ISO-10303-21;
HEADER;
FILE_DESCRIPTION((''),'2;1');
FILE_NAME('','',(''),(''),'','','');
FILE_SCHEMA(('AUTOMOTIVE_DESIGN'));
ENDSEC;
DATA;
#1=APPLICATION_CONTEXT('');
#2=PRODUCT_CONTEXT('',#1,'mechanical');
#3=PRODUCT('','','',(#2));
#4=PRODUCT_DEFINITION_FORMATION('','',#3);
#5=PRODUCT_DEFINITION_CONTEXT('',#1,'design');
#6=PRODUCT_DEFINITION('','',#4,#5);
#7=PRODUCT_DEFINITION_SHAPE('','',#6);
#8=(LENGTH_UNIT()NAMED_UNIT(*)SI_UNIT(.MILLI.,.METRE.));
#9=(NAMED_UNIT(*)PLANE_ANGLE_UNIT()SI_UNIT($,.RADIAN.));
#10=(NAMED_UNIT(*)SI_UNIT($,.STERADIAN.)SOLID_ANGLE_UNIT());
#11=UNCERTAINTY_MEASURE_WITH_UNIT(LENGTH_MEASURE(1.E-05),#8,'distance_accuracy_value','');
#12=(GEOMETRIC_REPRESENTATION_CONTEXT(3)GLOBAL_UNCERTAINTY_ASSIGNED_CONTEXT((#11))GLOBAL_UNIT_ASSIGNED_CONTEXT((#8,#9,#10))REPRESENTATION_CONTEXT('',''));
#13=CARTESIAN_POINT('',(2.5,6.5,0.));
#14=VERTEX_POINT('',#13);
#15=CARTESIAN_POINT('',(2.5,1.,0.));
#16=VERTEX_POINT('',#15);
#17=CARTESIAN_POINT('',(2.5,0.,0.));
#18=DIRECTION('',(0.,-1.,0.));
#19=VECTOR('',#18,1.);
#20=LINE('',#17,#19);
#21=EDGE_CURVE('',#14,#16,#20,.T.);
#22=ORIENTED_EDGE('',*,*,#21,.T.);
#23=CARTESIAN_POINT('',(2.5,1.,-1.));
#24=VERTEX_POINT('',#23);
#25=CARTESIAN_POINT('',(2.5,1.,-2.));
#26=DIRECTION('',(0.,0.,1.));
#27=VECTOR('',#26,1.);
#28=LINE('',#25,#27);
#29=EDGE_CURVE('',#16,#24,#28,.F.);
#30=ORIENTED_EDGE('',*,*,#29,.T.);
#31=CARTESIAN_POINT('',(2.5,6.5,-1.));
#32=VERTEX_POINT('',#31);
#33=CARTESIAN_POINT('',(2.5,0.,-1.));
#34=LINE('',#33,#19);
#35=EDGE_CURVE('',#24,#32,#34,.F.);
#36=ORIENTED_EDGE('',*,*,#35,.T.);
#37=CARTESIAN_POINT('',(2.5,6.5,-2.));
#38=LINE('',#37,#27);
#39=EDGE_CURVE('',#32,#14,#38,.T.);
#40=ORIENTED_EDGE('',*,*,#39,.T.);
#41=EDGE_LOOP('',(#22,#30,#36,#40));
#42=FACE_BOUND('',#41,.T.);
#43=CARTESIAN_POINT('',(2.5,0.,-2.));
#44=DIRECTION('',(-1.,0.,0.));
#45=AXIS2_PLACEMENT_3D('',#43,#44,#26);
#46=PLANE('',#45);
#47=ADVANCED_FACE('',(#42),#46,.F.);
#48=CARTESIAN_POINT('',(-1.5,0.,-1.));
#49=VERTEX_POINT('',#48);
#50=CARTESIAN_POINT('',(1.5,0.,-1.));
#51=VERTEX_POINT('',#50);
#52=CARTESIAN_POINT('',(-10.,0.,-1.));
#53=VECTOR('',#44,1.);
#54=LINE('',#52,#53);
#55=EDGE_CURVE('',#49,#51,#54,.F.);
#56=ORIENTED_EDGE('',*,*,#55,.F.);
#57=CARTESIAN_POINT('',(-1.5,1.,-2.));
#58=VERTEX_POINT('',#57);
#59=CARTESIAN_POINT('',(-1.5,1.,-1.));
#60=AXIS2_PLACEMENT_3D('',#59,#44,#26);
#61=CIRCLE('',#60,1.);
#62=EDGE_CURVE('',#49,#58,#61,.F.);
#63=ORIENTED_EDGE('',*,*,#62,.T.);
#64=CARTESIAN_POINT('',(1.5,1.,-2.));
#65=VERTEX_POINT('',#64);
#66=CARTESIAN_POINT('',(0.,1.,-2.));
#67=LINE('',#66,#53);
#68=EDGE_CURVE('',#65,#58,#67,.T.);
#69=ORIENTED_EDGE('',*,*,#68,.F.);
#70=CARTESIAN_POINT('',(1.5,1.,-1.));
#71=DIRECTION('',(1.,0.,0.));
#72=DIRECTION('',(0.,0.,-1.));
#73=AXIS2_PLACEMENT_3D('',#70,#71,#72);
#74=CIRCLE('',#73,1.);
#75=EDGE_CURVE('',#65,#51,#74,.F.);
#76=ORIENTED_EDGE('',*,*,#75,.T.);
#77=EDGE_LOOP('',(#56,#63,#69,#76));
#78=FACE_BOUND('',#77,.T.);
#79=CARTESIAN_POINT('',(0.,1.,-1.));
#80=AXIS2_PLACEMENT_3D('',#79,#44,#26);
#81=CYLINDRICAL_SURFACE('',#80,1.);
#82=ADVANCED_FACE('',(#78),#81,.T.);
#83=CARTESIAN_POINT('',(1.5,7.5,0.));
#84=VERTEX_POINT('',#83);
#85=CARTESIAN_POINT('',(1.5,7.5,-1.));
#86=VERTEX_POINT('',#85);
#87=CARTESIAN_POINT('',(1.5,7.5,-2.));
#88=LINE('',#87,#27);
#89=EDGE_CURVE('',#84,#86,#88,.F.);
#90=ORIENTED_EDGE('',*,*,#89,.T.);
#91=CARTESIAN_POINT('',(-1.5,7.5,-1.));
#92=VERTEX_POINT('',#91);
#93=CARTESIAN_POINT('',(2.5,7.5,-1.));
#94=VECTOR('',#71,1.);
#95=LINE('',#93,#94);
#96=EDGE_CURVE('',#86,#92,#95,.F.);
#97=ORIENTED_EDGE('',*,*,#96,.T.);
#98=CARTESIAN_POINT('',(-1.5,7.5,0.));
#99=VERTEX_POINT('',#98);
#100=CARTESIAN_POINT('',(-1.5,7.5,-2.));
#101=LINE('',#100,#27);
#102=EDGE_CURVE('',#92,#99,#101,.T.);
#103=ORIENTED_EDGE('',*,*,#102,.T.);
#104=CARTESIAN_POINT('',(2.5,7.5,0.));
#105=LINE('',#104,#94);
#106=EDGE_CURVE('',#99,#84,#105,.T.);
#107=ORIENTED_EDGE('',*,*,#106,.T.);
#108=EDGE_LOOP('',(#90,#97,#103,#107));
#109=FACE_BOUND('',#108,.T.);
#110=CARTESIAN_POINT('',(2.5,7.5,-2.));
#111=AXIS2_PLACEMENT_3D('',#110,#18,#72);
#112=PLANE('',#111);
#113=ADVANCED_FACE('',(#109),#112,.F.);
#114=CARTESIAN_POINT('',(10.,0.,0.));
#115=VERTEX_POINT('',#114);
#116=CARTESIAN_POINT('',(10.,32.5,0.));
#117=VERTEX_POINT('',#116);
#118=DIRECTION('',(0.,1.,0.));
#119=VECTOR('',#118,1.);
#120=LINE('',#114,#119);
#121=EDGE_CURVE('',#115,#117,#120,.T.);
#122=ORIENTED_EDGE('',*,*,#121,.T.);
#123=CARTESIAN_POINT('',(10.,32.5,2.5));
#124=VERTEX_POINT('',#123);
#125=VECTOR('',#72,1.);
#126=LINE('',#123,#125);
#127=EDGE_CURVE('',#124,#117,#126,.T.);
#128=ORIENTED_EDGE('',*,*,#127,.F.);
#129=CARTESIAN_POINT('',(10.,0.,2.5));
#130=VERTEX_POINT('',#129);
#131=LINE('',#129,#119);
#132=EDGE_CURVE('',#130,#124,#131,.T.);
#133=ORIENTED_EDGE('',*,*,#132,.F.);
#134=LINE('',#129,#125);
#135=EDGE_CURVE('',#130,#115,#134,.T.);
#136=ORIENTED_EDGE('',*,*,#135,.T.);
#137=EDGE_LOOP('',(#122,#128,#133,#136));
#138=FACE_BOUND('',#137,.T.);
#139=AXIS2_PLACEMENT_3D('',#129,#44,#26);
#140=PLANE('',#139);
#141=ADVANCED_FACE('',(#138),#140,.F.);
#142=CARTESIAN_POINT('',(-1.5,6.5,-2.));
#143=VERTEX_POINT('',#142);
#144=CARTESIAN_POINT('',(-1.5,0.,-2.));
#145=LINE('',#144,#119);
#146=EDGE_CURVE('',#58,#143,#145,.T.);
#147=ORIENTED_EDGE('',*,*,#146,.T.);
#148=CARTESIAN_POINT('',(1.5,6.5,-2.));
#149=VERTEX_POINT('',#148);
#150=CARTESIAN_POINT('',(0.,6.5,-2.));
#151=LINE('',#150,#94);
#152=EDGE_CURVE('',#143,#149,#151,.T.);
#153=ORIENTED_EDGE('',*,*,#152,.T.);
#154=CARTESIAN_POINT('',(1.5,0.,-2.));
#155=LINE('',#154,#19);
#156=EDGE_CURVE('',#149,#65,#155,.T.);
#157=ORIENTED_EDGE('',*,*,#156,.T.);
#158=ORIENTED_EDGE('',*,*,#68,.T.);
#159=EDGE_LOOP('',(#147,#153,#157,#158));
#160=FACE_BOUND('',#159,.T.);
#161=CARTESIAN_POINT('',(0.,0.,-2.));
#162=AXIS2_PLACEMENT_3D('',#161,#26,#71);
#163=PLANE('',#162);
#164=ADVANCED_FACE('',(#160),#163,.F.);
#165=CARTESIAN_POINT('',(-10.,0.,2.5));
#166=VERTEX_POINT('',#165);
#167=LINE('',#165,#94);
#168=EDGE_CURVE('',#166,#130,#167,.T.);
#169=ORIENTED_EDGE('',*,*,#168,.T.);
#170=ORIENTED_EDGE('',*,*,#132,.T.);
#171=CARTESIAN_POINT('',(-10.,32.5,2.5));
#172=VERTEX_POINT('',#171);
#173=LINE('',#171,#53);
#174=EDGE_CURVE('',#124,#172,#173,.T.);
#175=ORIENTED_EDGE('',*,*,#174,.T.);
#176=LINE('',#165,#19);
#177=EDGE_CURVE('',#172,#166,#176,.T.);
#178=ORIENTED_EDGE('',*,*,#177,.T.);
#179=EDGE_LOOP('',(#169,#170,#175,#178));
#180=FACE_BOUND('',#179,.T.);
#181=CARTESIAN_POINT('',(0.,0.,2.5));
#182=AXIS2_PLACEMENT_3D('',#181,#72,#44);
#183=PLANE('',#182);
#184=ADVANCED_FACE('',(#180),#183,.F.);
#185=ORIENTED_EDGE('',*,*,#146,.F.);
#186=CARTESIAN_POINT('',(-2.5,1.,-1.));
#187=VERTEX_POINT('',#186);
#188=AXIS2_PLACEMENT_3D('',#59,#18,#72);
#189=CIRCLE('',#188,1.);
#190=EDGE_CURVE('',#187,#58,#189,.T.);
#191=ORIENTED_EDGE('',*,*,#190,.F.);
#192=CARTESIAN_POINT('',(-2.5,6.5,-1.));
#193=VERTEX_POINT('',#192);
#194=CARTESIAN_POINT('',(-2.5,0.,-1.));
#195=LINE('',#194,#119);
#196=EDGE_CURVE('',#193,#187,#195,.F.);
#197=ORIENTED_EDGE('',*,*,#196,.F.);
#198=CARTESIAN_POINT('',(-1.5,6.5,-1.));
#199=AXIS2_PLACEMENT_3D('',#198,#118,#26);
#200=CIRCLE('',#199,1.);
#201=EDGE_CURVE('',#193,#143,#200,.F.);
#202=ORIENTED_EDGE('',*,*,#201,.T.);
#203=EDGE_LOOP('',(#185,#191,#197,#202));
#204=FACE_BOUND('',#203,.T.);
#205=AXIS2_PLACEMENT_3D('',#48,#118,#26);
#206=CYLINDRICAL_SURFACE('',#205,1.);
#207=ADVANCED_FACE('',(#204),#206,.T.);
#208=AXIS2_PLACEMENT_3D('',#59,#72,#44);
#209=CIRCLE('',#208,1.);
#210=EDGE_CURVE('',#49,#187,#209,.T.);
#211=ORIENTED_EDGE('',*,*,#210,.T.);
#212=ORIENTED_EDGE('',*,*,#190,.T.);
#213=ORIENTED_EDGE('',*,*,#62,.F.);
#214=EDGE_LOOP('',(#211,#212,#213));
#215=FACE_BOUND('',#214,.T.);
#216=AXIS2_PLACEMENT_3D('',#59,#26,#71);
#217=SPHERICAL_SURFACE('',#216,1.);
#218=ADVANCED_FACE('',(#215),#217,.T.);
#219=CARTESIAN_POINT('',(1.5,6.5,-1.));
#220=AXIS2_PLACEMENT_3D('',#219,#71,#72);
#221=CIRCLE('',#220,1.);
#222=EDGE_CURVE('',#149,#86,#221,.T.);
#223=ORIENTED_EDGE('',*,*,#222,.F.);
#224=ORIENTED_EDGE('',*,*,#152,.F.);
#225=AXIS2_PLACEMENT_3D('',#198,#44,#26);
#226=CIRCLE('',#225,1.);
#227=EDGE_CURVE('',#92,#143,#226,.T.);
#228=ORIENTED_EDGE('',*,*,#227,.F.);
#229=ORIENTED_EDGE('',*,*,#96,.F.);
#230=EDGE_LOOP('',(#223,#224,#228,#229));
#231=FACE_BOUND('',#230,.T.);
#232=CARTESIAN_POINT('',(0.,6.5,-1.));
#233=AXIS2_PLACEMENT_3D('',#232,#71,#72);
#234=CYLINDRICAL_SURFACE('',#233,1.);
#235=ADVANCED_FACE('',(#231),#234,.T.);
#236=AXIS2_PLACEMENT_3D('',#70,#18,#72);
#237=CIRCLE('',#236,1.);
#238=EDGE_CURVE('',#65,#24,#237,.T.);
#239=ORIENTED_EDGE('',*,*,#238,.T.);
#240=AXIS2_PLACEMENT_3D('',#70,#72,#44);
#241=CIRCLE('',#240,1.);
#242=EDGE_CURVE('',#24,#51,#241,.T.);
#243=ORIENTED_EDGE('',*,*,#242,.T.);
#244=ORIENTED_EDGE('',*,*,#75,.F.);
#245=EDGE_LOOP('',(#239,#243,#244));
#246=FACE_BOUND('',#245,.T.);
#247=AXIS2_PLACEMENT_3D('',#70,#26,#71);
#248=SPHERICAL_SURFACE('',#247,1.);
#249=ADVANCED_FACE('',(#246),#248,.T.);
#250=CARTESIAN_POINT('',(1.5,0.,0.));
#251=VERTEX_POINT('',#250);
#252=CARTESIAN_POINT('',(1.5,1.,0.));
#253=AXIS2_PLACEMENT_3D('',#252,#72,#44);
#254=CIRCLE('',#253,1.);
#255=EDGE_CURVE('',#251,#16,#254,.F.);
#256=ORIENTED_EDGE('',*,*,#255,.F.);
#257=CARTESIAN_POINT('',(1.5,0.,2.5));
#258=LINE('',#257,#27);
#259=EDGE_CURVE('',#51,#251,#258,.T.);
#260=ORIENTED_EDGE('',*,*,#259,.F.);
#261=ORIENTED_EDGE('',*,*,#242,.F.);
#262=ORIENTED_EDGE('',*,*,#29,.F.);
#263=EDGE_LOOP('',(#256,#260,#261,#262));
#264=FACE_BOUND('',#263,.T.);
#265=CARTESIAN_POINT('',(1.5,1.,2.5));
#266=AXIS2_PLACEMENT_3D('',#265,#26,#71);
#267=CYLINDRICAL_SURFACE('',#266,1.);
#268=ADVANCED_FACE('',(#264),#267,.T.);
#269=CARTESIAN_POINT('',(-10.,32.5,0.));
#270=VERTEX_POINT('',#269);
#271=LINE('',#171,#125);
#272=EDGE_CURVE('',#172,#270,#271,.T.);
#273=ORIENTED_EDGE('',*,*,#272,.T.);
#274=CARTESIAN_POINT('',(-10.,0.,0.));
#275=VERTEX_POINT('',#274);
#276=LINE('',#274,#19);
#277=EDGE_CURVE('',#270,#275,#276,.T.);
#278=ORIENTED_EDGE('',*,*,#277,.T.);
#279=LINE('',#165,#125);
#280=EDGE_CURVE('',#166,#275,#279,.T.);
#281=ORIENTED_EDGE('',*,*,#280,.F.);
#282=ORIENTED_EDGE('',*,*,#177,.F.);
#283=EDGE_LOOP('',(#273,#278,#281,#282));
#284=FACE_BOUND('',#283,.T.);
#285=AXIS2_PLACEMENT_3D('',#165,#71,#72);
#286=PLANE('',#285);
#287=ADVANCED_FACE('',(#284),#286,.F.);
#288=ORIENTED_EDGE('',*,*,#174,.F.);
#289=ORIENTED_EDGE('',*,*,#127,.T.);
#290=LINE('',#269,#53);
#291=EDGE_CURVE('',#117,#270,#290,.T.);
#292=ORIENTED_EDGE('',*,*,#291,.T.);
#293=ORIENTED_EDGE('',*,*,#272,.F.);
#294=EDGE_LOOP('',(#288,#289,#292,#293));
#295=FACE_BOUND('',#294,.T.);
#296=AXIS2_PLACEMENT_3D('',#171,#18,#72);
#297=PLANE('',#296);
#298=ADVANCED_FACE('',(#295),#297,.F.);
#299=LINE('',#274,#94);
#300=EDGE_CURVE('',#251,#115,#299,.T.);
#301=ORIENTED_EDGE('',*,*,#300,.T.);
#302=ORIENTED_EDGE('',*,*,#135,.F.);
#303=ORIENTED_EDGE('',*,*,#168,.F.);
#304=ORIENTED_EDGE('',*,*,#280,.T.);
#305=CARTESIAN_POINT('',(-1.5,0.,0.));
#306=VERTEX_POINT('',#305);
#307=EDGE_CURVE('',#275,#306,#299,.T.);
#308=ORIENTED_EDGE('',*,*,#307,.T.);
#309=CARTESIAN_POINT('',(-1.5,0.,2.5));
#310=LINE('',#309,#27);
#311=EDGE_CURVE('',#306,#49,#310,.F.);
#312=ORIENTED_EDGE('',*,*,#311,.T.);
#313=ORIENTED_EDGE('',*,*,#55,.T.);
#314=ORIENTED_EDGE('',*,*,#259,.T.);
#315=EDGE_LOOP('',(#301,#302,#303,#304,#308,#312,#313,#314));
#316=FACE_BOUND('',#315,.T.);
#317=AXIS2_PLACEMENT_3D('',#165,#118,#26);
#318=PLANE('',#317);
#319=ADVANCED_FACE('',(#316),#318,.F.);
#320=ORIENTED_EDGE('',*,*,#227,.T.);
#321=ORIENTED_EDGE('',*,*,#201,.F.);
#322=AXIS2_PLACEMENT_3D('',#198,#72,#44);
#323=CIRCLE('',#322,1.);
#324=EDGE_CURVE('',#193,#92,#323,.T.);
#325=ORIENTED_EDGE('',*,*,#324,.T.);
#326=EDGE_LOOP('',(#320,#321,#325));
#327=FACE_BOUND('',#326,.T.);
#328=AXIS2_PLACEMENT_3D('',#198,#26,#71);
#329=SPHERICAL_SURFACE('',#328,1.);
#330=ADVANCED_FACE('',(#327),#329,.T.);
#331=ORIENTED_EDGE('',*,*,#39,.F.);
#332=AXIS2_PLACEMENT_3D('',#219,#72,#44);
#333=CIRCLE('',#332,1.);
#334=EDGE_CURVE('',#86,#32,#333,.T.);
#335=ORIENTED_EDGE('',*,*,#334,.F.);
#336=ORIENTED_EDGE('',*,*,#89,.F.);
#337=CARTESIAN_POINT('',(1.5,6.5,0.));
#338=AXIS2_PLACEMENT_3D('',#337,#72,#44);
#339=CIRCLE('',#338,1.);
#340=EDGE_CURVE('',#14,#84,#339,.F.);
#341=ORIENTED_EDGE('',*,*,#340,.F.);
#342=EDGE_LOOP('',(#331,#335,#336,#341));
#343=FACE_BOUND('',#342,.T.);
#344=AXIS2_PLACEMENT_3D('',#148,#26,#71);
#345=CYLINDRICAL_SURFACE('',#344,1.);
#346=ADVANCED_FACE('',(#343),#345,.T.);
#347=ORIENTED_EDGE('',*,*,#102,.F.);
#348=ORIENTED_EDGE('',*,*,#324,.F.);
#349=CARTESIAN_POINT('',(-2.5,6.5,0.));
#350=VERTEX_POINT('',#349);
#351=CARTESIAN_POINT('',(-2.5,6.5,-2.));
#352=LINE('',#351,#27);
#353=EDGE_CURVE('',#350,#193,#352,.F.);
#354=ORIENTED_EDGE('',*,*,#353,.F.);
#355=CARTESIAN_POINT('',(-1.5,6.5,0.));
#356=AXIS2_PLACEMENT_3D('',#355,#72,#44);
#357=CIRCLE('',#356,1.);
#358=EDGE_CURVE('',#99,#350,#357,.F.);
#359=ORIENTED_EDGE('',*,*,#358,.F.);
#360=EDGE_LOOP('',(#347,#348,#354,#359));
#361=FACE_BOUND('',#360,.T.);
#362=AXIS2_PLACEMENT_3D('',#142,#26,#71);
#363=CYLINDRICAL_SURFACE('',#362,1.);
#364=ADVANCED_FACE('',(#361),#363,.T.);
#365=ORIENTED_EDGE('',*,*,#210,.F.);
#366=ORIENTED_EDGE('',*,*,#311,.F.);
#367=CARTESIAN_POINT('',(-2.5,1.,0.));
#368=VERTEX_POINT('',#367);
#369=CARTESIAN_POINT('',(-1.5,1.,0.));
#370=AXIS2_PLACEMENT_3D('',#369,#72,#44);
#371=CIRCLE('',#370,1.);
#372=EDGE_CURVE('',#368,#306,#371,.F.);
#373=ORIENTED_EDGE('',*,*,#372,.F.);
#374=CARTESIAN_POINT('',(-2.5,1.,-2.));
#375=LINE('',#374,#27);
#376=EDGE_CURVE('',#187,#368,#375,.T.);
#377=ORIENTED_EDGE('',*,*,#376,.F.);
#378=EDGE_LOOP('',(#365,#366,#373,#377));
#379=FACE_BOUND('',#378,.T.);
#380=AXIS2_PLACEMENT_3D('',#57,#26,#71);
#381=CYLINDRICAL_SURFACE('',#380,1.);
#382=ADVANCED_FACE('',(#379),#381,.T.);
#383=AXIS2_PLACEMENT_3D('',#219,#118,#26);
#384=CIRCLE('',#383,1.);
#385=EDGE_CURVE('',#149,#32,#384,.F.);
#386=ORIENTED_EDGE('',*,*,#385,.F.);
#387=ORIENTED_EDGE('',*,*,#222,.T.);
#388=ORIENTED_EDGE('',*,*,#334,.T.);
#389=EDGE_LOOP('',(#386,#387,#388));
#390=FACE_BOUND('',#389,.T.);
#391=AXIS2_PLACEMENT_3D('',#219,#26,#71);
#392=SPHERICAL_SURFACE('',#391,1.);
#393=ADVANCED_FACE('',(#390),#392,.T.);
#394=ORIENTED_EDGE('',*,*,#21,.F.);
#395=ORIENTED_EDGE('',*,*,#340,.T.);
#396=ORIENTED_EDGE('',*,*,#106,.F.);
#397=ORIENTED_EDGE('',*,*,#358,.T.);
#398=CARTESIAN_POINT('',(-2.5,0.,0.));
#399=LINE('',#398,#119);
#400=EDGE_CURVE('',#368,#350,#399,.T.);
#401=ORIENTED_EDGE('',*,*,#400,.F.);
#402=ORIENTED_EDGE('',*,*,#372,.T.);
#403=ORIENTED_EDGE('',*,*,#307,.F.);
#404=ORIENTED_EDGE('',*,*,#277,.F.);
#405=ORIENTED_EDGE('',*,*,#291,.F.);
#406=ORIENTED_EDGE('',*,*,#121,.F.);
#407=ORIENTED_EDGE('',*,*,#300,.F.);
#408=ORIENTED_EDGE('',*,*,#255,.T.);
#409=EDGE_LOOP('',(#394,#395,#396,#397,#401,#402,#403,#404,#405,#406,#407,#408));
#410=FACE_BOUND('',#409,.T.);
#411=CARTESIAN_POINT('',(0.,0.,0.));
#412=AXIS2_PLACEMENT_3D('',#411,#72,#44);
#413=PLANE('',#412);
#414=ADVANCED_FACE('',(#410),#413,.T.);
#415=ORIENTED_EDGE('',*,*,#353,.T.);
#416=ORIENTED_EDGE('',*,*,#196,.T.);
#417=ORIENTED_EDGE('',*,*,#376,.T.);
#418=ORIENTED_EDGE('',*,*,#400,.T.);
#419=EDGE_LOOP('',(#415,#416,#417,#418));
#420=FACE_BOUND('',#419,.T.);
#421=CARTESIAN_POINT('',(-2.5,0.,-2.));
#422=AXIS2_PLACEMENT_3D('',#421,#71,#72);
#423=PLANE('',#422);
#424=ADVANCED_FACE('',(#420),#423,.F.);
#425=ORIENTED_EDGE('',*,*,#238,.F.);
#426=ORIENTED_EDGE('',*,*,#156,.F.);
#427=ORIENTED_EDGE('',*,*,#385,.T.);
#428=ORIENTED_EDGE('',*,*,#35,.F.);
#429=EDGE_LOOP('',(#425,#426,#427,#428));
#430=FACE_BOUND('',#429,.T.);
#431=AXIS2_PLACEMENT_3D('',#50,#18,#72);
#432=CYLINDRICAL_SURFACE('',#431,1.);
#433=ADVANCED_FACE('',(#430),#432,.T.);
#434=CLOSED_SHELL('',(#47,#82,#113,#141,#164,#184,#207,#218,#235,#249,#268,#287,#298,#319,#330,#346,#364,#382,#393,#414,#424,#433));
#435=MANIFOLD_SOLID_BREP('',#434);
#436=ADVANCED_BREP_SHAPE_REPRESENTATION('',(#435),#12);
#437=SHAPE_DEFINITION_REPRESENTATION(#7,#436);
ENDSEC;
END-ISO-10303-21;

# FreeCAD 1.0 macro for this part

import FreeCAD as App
import Part
import Sketcher

V = App.Vector


def edges_at(feature, points):
    """Names of the edges that pass closest to the given points."""
    edges = feature.Shape.Edges
    near = lambda p: min(range(len(edges)), key=lambda i: edges[i].distToShape(Part.Vertex(*p))[0])
    return sorted({f"Edge{near(p) + 1}" for p in points})


def add_polygon(sketch, points):
    """Adds a closed chain of lines whose ends are joined by coincident constraints."""
    first, n = sketch.GeometryCount, len(points)
    for a, b in zip(points, points[1:] + points[:1]):
        sketch.addGeometry(Part.LineSegment(App.Vector(*a, 0), App.Vector(*b, 0)), False)
    for i in range(n):
        sketch.addConstraint(Sketcher.Constraint("Coincident", first + i, 2, first + (i + 1) % n, 1))

doc = App.newDocument("Part")
body = doc.addObject("PartDesign::Body", "Body")

# Sketch on XY plane
sketch1 = body.newObject("Sketcher::SketchObject", "Sketch")
sketch1.AttachmentSupport = (doc.getObject("XY_Plane"), [""])
sketch1.MapMode = "FlatFace"
add_polygon(sketch1, [(-10, 32), (-10, 0), (10, 0), (10, 32)])  # lines 0-3
sketch1.addConstraint(Sketcher.Constraint("Vertical", 0))
sketch1.addConstraint(Sketcher.Constraint("Horizontal", 1))
sketch1.addConstraint(Sketcher.Constraint("Vertical", 2))
sketch1.addConstraint(Sketcher.Constraint("Horizontal", 3))
sketch1.addConstraint(Sketcher.Constraint("Symmetric", 0, 2, 1, 2, -1, 1))
sketch1.addConstraint(Sketcher.Constraint("DistanceX", 1, 1, 1, 2, 20.0))
sketch1.addConstraint(Sketcher.Constraint("DistanceY", 0, 2, 0, 1, 32.5))
pad1 = body.newObject("PartDesign::Pad", "Pad")
pad1.Profile = sketch1
pad1.Length = 2.5

# Sketch on XY plane
sketch2 = body.newObject("Sketcher::SketchObject", "Sketch001")
sketch2.AttachmentSupport = (doc.getObject("XY_Plane"), [""])
sketch2.MapMode = "FlatFace"
add_polygon(sketch2, [(2, 8), (2, 0), (-2, 0), (-2, 8)])  # lines 0-3
sketch2.addConstraint(Sketcher.Constraint("Vertical", 0))
sketch2.addConstraint(Sketcher.Constraint("Horizontal", 1))
sketch2.addConstraint(Sketcher.Constraint("Vertical", 2))
sketch2.addConstraint(Sketcher.Constraint("Horizontal", 3))
sketch2.addConstraint(Sketcher.Constraint("Symmetric", 0, 2, 1, 2, -1, 1))
sketch2.addConstraint(Sketcher.Constraint("DistanceX", 1, 2, 1, 1, 5.0))
sketch2.addConstraint(Sketcher.Constraint("DistanceY", 0, 2, 0, 1, 7.5))
pad2 = body.newObject("PartDesign::Pad", "Pad001")
pad2.Profile = sketch2
pad2.Length = 2
pad2.Reversed = True
doc.recompute()

fillet = body.newObject("PartDesign::Fillet", "Fillet")
fillet.Base = (pad2, edges_at(pad2, [
    (2.5, 7.5, -1),
    (2.5, 0, -1),
    (-2.5, 0, -1),
    (-2.5, 7.5, -1),
    (2.5, 3.75, -2),
    (0, 0, -2),
    (-2.5, 3.75, -2),
    (0, 7.5, -2),
]))
fillet.Radius = 1

doc.recompute()
